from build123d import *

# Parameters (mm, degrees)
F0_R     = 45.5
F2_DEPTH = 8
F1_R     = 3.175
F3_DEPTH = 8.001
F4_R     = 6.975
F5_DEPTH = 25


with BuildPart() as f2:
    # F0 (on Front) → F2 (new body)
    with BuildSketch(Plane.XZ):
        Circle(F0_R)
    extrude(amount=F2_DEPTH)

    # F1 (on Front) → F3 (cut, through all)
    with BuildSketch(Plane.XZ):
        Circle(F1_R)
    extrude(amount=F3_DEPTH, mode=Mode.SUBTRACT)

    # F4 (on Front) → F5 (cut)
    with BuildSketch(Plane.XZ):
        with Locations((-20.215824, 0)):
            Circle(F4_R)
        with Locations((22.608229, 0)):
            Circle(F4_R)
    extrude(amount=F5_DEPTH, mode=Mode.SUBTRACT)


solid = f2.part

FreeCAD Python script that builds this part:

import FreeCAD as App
import Part
import Sketcher

V = App.Vector
Q = App.Units.Quantity

doc = App.newDocument("Part")
params = doc.addObject("Spreadsheet::Sheet", "Params")
for row, (alias, value) in enumerate([
    ("sketch1_diameter", "91 mm"),
    ("pad1_length", "8 mm"),
    ("sketch2_diameter", "6.35 mm"),
    ("sketch3_diameter", "13.95 mm"),
    ("pocket2_length", "25 mm"),
], start=1):
    params.set(f"A{row}", alias)
    params.set(f"B{row}", "=" + value)
    params.setAlias(f"B{row}", alias)

body = doc.addObject("PartDesign::Body", "Body")

sketch1 = body.newObject("Sketcher::SketchObject", "Sketch")
sketch1.AttachmentSupport = (doc.getObject("XZ_Plane"), [""])
sketch1.MapMode = "FlatFace"
sketch1.addGeometry(Part.Circle(V(0, 0, 0), V(0, 0, 1), 46), False)
sketch1.addConstraint(Sketcher.Constraint("Coincident", 0, 3, -1, 1))
sketch1.addConstraint(Sketcher.Constraint("Diameter", 0, Q("91 mm")))
sketch1.setExpression("Constraints[1]", "Params.sketch1_diameter")
pad1 = body.newObject("PartDesign::Pad", "Pad")
pad1.Profile = sketch1
pad1.setExpression("Length", "Params.pad1_length")

sketch2 = body.newObject("Sketcher::SketchObject", "Sketch001")
sketch2.AttachmentSupport = (doc.getObject("XZ_Plane"), [""])
sketch2.MapMode = "FlatFace"
sketch2.addGeometry(Part.Circle(V(0, 0, 0), V(0, 0, 1), 3.2), False)
sketch2.addConstraint(Sketcher.Constraint("Coincident", 0, 3, -1, 1))
sketch2.addConstraint(Sketcher.Constraint("Diameter", 0, Q("6.35 mm")))
sketch2.setExpression("Constraints[1]", "Params.sketch2_diameter")
pocket1 = body.newObject("PartDesign::Pocket", "Pocket")
pocket1.Profile = sketch2
pocket1.Type = "ThroughAll"
pocket1.Reversed = True

sketch3 = body.newObject("Sketcher::SketchObject", "Sketch002")
sketch3.AttachmentSupport = (doc.getObject("XZ_Plane"), [""])
sketch3.MapMode = "FlatFace"
sketch3.addGeometry(Part.Circle(V(-20, 0, 0), V(0, 0, 1), 7), False)
sketch3.addGeometry(Part.Circle(V(23, 0, 0), V(0, 0, 1), 7), False)
sketch3.addConstraint(Sketcher.Constraint("Equal", 0, 1))
sketch3.addConstraint(Sketcher.Constraint("PointOnObject", 0, 3, -1))
sketch3.addConstraint(Sketcher.Constraint("PointOnObject", 1, 3, -1))
sketch3.addConstraint(Sketcher.Constraint("Diameter", 0, Q("13.95 mm")))
sketch3.addConstraint(Sketcher.Constraint("DistanceX", -1, 1, 1, 3, Q("22.608229 mm")))
sketch3.addConstraint(Sketcher.Constraint("DistanceX", 0, 3, -1, 1, Q("20.215824 mm")))
sketch3.setExpression("Constraints[3]", "Params.sketch3_diameter")
pocket2 = body.newObject("PartDesign::Pocket", "Pocket001")
pocket2.Profile = sketch3
pocket2.setExpression("Length", "Params.pocket2_length")
pocket2.Reversed = True

doc.recompute()
